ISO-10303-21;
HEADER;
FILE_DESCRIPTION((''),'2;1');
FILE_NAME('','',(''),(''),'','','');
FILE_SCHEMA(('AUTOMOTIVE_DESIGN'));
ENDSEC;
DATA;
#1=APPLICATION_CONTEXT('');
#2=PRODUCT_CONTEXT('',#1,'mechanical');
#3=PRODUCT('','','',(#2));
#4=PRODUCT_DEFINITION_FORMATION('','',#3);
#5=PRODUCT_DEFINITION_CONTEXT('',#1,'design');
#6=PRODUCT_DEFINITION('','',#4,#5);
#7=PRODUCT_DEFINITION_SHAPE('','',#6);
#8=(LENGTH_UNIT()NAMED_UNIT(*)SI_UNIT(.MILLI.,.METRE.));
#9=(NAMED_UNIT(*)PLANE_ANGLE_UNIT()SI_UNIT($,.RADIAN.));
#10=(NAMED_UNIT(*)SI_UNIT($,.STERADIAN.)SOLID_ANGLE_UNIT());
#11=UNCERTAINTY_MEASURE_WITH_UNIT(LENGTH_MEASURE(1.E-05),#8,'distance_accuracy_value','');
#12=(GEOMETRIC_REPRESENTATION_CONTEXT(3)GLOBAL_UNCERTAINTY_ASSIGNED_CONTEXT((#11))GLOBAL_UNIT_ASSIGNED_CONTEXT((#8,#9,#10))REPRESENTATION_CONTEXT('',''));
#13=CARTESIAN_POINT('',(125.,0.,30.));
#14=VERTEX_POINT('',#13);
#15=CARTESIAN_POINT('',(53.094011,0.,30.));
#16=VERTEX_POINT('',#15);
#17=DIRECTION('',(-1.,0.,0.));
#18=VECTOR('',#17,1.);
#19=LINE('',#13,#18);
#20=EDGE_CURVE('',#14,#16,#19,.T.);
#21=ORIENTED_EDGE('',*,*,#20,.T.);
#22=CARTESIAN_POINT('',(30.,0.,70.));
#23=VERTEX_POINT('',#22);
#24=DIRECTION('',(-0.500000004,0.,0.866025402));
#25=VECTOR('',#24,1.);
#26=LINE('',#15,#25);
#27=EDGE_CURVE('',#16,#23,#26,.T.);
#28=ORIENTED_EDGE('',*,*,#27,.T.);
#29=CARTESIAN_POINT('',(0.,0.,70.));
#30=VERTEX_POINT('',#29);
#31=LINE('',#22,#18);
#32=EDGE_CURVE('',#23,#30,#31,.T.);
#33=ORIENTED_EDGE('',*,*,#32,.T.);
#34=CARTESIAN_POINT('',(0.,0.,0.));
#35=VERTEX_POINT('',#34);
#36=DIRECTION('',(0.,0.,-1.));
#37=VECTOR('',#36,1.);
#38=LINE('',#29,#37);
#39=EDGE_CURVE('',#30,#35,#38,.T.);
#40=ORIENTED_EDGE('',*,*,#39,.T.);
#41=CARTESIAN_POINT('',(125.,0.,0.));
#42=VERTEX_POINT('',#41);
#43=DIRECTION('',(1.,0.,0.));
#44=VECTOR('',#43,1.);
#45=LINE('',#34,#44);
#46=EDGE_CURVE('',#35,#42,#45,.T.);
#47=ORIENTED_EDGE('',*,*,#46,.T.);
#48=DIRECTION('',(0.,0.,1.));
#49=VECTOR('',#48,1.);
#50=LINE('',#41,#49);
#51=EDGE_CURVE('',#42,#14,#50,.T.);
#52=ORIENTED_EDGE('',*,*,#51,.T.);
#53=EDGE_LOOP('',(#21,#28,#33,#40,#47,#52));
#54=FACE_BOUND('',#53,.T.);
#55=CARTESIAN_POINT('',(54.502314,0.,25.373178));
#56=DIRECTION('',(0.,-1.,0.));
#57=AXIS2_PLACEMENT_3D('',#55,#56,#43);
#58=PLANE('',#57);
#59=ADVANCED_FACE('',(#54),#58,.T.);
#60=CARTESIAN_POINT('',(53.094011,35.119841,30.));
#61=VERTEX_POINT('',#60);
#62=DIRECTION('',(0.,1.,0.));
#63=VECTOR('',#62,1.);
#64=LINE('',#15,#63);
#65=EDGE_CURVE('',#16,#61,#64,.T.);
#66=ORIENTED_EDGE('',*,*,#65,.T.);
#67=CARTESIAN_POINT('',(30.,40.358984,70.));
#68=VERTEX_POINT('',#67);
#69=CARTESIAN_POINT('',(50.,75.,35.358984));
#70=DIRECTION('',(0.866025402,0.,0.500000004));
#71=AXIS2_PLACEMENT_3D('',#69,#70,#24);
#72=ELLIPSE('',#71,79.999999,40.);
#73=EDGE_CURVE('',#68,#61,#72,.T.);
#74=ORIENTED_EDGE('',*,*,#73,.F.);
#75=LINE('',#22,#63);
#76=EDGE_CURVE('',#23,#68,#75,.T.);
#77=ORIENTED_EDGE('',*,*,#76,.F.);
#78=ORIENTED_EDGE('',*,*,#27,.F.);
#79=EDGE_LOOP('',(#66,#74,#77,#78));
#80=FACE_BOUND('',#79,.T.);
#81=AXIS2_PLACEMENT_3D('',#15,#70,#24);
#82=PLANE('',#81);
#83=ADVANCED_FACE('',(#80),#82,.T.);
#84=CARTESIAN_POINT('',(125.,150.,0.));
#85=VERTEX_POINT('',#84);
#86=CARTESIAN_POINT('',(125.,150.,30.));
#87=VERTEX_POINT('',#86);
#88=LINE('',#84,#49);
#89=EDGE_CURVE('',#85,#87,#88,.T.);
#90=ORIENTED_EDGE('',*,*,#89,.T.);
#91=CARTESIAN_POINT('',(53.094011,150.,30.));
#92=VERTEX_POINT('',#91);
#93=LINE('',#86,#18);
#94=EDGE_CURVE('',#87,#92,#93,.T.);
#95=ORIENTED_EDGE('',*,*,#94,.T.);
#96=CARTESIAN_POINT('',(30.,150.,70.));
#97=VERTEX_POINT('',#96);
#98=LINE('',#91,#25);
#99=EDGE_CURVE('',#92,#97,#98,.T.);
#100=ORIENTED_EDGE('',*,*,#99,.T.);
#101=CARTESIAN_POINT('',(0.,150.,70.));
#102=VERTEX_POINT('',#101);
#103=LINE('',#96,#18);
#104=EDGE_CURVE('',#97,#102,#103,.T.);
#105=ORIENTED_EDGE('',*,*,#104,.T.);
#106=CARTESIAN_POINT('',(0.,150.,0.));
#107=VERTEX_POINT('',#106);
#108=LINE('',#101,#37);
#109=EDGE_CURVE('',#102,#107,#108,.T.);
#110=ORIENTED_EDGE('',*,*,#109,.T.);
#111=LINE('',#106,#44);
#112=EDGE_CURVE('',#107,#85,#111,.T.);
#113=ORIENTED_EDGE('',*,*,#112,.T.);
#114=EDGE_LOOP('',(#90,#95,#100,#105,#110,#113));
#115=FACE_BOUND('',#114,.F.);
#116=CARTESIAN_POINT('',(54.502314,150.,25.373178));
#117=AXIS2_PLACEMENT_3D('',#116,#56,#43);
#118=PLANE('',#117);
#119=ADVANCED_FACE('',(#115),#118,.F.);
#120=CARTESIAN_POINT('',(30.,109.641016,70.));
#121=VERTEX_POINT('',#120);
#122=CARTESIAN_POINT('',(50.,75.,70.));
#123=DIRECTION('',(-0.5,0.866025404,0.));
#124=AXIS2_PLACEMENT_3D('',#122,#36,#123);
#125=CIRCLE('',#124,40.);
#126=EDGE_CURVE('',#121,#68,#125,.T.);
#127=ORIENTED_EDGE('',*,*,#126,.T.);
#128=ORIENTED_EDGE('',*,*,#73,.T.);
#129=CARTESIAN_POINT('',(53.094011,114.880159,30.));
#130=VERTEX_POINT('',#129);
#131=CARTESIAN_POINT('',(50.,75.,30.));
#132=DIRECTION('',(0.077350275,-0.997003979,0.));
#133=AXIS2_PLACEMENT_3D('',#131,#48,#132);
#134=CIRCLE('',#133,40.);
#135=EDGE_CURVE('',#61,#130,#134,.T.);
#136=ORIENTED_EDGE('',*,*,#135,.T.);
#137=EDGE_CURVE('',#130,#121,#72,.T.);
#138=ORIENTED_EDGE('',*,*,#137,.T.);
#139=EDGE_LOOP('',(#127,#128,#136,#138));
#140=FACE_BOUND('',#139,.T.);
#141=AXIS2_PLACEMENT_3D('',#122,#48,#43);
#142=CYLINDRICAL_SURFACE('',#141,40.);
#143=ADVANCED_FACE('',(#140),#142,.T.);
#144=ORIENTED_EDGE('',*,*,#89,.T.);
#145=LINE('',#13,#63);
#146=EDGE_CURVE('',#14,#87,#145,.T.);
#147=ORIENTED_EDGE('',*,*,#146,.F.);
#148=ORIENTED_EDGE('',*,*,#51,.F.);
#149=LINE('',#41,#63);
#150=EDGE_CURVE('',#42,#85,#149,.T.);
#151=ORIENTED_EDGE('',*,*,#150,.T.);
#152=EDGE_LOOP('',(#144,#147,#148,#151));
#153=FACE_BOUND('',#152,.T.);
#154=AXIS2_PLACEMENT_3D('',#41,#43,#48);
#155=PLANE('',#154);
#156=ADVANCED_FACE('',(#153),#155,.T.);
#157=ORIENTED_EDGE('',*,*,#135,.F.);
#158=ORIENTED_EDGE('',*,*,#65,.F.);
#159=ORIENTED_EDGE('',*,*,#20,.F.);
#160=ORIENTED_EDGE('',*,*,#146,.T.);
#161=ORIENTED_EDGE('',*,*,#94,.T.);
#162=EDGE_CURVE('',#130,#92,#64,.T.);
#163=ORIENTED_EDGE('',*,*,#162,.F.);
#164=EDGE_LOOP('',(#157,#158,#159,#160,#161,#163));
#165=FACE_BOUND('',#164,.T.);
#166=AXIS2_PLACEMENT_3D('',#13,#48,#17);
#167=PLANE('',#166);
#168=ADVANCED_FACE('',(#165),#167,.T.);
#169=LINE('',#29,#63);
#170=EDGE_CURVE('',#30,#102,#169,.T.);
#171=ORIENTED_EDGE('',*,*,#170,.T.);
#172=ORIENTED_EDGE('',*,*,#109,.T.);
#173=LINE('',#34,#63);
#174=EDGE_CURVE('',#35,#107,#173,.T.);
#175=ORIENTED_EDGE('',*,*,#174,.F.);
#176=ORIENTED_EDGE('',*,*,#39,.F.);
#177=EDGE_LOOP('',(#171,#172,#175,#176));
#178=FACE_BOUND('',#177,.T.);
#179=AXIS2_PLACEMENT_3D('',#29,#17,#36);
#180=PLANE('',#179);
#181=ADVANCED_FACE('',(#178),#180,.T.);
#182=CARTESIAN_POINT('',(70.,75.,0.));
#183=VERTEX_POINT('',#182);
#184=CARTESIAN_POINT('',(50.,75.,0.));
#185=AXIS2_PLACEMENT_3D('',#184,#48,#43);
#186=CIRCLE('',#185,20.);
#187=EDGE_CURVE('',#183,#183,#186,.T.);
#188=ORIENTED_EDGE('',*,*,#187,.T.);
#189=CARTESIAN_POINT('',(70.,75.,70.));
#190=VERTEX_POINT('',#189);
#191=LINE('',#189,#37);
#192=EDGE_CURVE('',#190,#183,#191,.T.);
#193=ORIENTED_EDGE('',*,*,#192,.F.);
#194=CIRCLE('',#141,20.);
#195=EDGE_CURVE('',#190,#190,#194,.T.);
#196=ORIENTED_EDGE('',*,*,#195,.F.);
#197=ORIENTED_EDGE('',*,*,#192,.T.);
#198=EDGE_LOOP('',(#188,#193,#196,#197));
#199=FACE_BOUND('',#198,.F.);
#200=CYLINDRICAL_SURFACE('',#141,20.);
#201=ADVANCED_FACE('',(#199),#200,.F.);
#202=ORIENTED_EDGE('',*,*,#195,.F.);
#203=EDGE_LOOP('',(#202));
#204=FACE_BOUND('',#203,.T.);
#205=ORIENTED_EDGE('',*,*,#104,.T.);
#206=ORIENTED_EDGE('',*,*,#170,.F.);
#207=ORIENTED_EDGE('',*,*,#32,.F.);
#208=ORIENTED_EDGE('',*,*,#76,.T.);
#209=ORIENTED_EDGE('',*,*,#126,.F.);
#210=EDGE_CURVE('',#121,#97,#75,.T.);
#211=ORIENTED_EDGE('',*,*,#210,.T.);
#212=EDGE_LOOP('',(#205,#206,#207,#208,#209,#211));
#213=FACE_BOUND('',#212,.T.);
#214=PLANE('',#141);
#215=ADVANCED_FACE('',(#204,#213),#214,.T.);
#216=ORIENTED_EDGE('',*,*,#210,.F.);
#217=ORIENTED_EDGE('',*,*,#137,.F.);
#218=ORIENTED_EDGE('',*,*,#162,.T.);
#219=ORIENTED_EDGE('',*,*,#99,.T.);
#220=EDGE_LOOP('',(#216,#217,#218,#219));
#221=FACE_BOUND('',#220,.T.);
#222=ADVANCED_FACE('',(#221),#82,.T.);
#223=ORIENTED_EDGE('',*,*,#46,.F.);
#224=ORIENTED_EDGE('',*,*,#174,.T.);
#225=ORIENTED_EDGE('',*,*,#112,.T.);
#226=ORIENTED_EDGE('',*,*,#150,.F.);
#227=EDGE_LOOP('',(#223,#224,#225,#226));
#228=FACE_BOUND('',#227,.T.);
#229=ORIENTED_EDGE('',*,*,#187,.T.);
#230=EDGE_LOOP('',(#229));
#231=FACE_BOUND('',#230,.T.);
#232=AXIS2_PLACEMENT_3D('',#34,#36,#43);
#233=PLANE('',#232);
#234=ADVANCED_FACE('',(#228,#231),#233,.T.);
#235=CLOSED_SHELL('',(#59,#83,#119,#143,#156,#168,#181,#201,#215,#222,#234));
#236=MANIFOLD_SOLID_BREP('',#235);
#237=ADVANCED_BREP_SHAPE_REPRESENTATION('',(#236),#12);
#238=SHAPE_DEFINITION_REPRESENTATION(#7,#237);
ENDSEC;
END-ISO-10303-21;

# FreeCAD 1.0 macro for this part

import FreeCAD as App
import Part
import Sketcher
from FreeCAD import Vector
Q = App.Units.Quantity


def add_polygon(sketch, points):
    """Adds a closed chain of lines whose ends are joined by coincident constraints."""
    first, n = sketch.GeometryCount, len(points)
    for a, b in zip(points, points[1:] + points[:1]):
        sketch.addGeometry(Part.LineSegment(App.Vector(*a, 0), App.Vector(*b, 0)), False)
    for i in range(n):
        sketch.addConstraint(Sketcher.Constraint("Coincident", first + i, 2, first + (i + 1) % n, 1))

doc = App.newDocument("Part")
params = doc.addObject("Spreadsheet::Sheet", "Params")
for row, (alias, value) in enumerate([
    ("sketch1_width", "125 mm"),
    ("sketch1_width2", "30 mm"),
    ("sketch1_height", "70 mm"),
    ("pad1_length", "150 mm"),
    ("sketch2_diameter", "80 mm"),
    ("sketch3_diameter", "40 mm"),
], start=1):
    params.set(f"A{row}", alias)
    params.set(f"B{row}", "=" + value)
    params.setAlias(f"B{row}", alias)

body = doc.addObject("PartDesign::Body", "Body")

# Sketch on XZ plane
sketch1 = body.newObject("Sketcher::SketchObject", "Sketch")
sketch1.AttachmentSupport = (doc.getObject("XZ_Plane"), [""])
sketch1.MapMode = "FlatFace"
add_polygon(sketch1, [(0, 70), (0, 0), (125, 0), (125, 30), (53, 30), (30, 70)])  # lines 0-5
sketch1.addConstraint([
    Sketcher.Constraint("Vertical", 0),
    Sketcher.Constraint("Horizontal", 1),
    Sketcher.Constraint("Vertical", 2),
    Sketcher.Constraint("Horizontal", 3),
    Sketcher.Constraint("Horizontal", 5),
    Sketcher.Constraint("Coincident", 0, 2, -1, 1),
    Sketcher.Constraint("Equal", 5, 2),
    Sketcher.Constraint("DistanceX", 1, 1, 1, 2, Q("125 mm")),
    Sketcher.Constraint("DistanceX", 5, 2, 5, 1, Q("30 mm")),
    Sketcher.Constraint("DistanceY", 0, 2, 0, 1, Q("70 mm")),
    Sketcher.Constraint("Angle", 4, Q("120 deg")),
])
sketch1.setExpression("Constraints[13]", "Params.sketch1_width")
sketch1.setExpression("Constraints[14]", "Params.sketch1_width2")
sketch1.setExpression("Constraints[15]", "Params.sketch1_height")
pad1 = body.newObject("PartDesign::Pad", "Pad")
pad1.Profile = sketch1
pad1.setExpression("Length", "Params.pad1_length")
pad1.Reversed = True

# Sketch on XY plane
sketch2 = body.newObject("Sketcher::SketchObject", "Sketch001")
sketch2.AttachmentSupport = (doc.getObject("XY_Plane"), [""])
sketch2.MapMode = "FlatFace"
sketch2.AttachmentOffset = App.Placement(Vector(0, 0, 70), App.Rotation())
sketch2.addGeometry(Part.Circle(Vector(50, 75, 0), Vector(0, 0, 1), 40), False)
sketch2.addConstraint([
    Sketcher.Constraint("Diameter", 0, Q("80 mm")),
    Sketcher.Constraint("DistanceX", -1, 1, 0, 3, Q("50 mm")),
    Sketcher.Constraint("DistanceY", -1, 1, 0, 3, Q("75 mm")),
])
sketch2.setExpression("Constraints[0]", "Params.sketch2_diameter")
pad2 = body.newObject("PartDesign::Pad", "Pad001")
pad2.Profile = sketch2
pad2.Type = "UpToLast"
pad2.Reversed = True

# Sketch on XY plane
sketch3 = body.newObject("Sketcher::SketchObject", "Sketch002")
sketch3.AttachmentSupport = (doc.getObject("XY_Plane"), [""])
sketch3.MapMode = "FlatFace"
sketch3.AttachmentOffset = App.Placement(Vector(0, 0, 70), App.Rotation())
sketch3.addGeometry(Part.Circle(Vector(50, 75, 0), Vector(0, 0, 1), 20), False)
sketch3.addConstraint([
    Sketcher.Constraint("Diameter", 0, Q("40 mm")),
    Sketcher.Constraint("DistanceX", -1, 1, 0, 3, Q("50 mm")),
    Sketcher.Constraint("DistanceY", -1, 1, 0, 3, Q("75 mm")),
])
sketch3.setExpression("Constraints[0]", "Params.sketch3_diameter")
pocket1 = body.newObject("PartDesign::Pocket", "Pocket")
pocket1.Profile = sketch3
pocket1.Type = "ThroughAll"

doc.recompute()
